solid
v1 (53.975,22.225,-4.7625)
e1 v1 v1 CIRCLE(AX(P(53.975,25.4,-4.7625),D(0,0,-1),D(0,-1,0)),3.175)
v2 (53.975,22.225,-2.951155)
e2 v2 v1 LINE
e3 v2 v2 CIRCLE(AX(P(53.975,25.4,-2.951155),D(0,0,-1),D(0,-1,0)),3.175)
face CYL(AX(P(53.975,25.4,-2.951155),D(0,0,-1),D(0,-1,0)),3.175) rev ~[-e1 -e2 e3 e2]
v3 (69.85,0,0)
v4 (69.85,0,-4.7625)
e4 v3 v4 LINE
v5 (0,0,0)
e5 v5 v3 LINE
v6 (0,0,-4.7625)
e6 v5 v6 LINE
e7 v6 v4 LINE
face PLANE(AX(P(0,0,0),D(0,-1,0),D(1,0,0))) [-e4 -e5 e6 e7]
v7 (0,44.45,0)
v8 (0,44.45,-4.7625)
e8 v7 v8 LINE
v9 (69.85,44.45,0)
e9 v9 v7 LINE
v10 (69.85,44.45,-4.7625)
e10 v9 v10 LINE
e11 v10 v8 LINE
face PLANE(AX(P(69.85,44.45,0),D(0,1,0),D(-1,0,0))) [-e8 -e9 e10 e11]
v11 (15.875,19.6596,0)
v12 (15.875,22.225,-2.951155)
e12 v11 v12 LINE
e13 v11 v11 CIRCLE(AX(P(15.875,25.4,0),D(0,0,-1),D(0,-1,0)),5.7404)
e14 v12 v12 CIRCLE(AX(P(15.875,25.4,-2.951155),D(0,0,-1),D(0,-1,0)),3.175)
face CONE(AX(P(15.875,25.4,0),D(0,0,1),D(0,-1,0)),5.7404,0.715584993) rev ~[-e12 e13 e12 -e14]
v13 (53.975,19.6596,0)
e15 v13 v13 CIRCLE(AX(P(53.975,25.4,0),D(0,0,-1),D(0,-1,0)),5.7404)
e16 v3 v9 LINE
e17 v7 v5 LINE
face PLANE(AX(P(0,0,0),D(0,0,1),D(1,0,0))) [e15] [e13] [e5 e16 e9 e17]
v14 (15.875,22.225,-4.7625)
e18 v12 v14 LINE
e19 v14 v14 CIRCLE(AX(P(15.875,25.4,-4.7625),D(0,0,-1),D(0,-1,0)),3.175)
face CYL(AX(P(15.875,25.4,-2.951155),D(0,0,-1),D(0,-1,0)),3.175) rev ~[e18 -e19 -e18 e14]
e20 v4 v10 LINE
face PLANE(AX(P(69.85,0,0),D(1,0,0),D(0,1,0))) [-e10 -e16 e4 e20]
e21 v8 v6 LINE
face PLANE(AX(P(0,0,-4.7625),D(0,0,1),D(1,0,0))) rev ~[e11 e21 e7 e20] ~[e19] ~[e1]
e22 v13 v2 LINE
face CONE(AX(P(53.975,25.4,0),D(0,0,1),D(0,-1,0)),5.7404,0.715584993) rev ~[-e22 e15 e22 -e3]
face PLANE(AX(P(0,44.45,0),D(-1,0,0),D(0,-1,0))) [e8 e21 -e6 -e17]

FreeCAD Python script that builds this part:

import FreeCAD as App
import Part
import Sketcher

V = App.Vector
Q = App.Units.Quantity


def add_polygon(sketch, points):
    """Adds a closed chain of lines whose ends are joined by coincident constraints."""
    first, n = sketch.GeometryCount, len(points)
    for a, b in zip(points, points[1:] + points[:1]):
        sketch.addGeometry(Part.LineSegment(App.Vector(*a, 0), App.Vector(*b, 0)), False)
    for i in range(n):
        sketch.addConstraint(Sketcher.Constraint("Coincident", first + i, 2, first + (i + 1) % n, 1))

doc = App.newDocument("Part")
body = doc.addObject("PartDesign::Body", "Body")

sketch1 = body.newObject("Sketcher::SketchObject", "Sketch")
sketch1.AttachmentSupport = (doc.getObject("XY_Plane"), [""])
sketch1.MapMode = "FlatFace"
add_polygon(sketch1, [(0, 44), (0, 0), (70, 0), (70, 44)])
sketch1.addConstraint([
    Sketcher.Constraint("Vertical", 0),
    Sketcher.Constraint("Horizontal", 1),
    Sketcher.Constraint("Vertical", 2),
    Sketcher.Constraint("Horizontal", 3),
    Sketcher.Constraint("Coincident", 0, 2, -1, 1),
    Sketcher.Constraint("DistanceX", 1, 1, 1, 2, Q("2.75 in")),
    Sketcher.Constraint("DistanceY", 0, 2, 0, 1, Q("1.75 in")),
])
pad1 = body.newObject("PartDesign::Pad", "Pad")
pad1.Profile = sketch1
pad1.Length = Q("0.1875 in")
pad1.Reversed = True

sketch2 = body.newObject("Sketcher::SketchObject", "Sketch001")
sketch2.AttachmentSupport = (doc.getObject("XY_Plane"), [""])
sketch2.MapMode = "FlatFace"
sketch2.addGeometry(Part.Circle(V(15.9, 25.4, 0), V(0, 0, 1), 3.2), False)
sketch2.addConstraint([
    Sketcher.Constraint("Diameter", 0, Q("0.25 in")),
    Sketcher.Constraint("DistanceY", -1, 1, 0, 3, Q("1 in")),
    Sketcher.Constraint("DistanceX", -1, 1, 0, 3, Q("0.625 in")),
])
doc.recompute()
hole = body.newObject("PartDesign::Hole", "Hole")
hole.Profile = sketch2
hole.ThreadType = "None"
hole.Diameter = Q("0.25 in")
hole.DepthType = "ThroughAll"
hole.HoleCutType = "Countersink"
hole.HoleCutDiameter = Q("0.452 in")
hole.HoleCutCountersinkAngle = 82

sketch3 = body.newObject("Sketcher::SketchObject", "Sketch002")
sketch3.AttachmentSupport = (doc.getObject("XY_Plane"), [""])
sketch3.MapMode = "FlatFace"
sketch3.addGeometry(Part.Circle(V(54, 25.4, 0), V(0, 0, 1), 3.2), False)
sketch3.addConstraint([
    Sketcher.Constraint("Diameter", 0, Q("0.25 in")),
    Sketcher.Constraint("DistanceY", -1, 1, 0, 3, Q("1 in")),
    Sketcher.Constraint("DistanceX", -1, 1, 0, 3, Q("2.125 in")),
])
doc.recompute()
hole2 = body.newObject("PartDesign::Hole", "Hole001")
hole2.Profile = sketch3
hole2.ThreadType = "None"
hole2.Diameter = Q("0.25 in")
hole2.DepthType = "ThroughAll"
hole2.HoleCutType = "Countersink"
hole2.HoleCutDiameter = Q("0.452 in")
hole2.HoleCutCountersinkAngle = 82

doc.recompute()
